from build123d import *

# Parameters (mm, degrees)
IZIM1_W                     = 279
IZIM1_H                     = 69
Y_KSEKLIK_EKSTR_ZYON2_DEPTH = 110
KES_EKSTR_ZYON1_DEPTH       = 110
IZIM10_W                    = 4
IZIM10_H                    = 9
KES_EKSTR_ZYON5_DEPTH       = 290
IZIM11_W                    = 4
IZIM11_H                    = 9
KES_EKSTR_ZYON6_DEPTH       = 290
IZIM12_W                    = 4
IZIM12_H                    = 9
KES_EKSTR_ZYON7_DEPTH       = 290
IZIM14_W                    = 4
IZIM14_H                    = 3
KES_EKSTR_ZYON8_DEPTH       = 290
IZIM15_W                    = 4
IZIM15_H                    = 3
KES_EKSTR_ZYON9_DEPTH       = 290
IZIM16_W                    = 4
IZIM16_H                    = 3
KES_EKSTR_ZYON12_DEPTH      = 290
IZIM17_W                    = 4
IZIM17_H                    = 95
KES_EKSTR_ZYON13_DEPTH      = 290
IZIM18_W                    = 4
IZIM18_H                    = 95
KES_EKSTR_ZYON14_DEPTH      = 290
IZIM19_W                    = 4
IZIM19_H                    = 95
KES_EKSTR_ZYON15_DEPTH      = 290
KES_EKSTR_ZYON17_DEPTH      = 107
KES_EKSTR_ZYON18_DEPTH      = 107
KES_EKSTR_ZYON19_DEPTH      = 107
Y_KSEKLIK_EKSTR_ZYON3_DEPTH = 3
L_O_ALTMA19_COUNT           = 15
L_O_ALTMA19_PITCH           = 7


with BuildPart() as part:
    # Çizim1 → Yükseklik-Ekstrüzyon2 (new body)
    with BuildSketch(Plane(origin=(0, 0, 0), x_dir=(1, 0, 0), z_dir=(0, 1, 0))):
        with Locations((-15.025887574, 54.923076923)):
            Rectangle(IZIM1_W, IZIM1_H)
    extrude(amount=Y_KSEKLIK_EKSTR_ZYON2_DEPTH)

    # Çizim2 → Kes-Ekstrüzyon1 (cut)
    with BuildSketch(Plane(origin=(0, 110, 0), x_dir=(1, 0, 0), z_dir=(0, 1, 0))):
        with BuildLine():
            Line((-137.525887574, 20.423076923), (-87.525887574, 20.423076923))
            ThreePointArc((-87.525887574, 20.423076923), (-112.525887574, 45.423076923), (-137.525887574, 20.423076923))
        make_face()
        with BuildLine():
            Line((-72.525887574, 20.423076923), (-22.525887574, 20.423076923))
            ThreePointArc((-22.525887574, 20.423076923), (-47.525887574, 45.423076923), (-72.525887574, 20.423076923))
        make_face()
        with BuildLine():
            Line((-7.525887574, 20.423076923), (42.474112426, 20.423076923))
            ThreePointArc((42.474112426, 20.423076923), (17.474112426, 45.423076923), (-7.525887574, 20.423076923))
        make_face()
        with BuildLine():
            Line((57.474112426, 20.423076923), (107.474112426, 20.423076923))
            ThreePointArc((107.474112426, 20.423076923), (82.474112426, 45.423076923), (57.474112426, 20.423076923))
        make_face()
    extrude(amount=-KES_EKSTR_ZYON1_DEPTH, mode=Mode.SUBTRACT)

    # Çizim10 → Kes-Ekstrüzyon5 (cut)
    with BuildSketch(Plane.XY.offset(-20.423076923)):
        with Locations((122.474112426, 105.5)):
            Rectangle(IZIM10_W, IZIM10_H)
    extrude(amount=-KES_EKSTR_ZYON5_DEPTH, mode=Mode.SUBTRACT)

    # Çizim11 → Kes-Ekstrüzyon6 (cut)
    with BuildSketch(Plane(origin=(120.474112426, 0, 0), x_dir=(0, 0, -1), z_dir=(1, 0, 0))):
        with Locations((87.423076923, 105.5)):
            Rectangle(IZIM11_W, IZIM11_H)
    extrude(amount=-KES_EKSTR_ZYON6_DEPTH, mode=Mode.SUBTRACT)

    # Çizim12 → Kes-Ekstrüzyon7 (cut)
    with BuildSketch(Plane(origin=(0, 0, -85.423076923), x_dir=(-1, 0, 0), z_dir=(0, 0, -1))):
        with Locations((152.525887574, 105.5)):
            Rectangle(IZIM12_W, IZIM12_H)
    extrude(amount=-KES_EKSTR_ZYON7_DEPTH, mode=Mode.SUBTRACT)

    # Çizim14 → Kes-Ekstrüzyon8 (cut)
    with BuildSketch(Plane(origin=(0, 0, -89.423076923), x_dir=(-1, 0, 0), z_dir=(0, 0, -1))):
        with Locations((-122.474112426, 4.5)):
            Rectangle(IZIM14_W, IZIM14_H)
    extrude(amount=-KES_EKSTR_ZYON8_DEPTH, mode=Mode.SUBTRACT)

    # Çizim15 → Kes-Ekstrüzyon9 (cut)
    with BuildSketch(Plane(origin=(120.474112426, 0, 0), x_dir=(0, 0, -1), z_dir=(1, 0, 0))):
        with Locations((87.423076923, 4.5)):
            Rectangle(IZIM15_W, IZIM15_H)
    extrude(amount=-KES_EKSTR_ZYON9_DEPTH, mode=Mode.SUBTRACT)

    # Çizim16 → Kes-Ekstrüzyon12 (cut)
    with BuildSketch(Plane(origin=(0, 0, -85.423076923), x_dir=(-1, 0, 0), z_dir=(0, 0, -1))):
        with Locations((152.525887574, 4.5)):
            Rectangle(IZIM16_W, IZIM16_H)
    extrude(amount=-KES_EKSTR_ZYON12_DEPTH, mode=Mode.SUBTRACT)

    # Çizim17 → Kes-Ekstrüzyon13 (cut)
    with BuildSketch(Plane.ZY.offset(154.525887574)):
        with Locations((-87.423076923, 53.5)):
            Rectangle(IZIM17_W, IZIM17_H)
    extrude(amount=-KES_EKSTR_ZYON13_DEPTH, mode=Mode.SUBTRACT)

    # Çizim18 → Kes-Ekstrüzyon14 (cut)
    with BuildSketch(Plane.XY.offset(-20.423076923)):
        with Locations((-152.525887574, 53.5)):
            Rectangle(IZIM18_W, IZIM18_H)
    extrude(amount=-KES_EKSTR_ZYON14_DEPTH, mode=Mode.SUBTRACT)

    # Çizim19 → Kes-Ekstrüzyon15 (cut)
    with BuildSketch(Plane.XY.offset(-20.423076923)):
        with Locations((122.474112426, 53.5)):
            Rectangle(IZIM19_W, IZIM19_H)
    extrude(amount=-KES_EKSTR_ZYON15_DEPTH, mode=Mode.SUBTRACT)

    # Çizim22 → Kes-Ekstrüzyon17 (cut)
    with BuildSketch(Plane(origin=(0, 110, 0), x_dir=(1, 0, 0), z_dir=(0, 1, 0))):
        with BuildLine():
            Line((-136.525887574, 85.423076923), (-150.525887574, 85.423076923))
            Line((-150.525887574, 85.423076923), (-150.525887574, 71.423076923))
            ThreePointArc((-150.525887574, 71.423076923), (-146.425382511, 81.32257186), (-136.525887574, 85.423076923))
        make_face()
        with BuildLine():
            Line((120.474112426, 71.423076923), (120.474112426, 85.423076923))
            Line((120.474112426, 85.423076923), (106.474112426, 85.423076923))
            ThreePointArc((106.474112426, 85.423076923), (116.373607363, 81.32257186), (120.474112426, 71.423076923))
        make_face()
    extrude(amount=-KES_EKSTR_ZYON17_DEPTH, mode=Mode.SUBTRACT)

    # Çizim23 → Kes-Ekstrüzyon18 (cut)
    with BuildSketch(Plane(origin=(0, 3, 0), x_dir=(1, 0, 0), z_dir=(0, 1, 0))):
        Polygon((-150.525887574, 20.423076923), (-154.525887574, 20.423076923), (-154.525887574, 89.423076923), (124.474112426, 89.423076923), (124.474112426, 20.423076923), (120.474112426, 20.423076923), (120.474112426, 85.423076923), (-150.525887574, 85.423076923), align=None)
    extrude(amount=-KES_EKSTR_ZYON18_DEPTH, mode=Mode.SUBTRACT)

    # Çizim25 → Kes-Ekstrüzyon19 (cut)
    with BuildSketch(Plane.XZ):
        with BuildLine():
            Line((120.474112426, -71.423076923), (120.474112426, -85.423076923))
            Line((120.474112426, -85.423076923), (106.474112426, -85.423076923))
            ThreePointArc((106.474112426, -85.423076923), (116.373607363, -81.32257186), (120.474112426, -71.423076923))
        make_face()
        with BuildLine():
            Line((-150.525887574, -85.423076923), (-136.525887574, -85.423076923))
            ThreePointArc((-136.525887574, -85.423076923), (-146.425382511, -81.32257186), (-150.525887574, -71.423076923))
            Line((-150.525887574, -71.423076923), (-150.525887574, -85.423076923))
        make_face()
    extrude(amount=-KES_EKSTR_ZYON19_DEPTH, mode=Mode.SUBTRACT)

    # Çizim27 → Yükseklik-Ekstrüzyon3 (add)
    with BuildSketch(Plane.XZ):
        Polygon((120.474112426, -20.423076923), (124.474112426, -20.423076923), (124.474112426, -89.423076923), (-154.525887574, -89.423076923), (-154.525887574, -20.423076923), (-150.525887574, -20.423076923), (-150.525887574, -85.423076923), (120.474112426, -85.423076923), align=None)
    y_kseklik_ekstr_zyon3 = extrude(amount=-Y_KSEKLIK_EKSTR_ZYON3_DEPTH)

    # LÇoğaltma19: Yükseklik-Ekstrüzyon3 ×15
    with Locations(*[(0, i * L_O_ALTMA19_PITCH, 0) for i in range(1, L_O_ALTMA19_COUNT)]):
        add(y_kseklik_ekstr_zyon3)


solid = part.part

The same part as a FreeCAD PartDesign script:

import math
import FreeCAD as App
import Part
import Sketcher

V = App.Vector
Q = App.Units.Quantity

doc = App.newDocument("Part")
params = doc.addObject("Spreadsheet::Sheet", "Params")
for row, (alias, value) in enumerate([
    ("sketch1_width", "279 mm"),
    ("sketch1_height", "69 mm"),
    ("pad1_length", "110 mm"),
    ("sketch2_radius", "25 mm"),
    ("pocket1_length", "110 mm"),
    ("sketch3_width", "4 mm"),
    ("sketch3_height", "9 mm"),
    ("pocket2_length", "290 mm"),
    ("sketch4_width", "9 mm"),
    ("sketch4_height", "4 mm"),
    ("pocket3_length", "290 mm"),
    ("sketch5_width", "4 mm"),
    ("sketch5_height", "9 mm"),
    ("pocket4_length", "290 mm"),
    ("sketch6_width", "4 mm"),
    ("sketch6_height", "3 mm"),
    ("pocket5_length", "290 mm"),
    ("sketch7_width", "3 mm"),
    ("sketch7_height", "4 mm"),
    ("pocket6_length", "290 mm"),
    ("sketch8_width", "4 mm"),
    ("sketch8_height", "3 mm"),
    ("pocket7_length", "290 mm"),
    ("sketch9_width", "95 mm"),
    ("sketch9_height", "4 mm"),
    ("pocket8_length", "290 mm"),
    ("sketch10_width", "4 mm"),
    ("sketch10_height", "95 mm"),
    ("pocket9_length", "290 mm"),
    ("sketch11_width", "4 mm"),
    ("sketch11_height", "95 mm"),
    ("pocket10_length", "290 mm"),
    ("sketch12_radius", "14 mm"),
    ("pocket11_length", "107 mm"),
    ("sketch13_width", "4 mm"),
    ("sketch13_width2", "271 mm"),
    ("sketch13_height", "65 mm"),
    ("sketch13_height2", "69 mm"),
    ("pocket12_length", "107 mm"),
    ("sketch14_radius", "14 mm"),
    ("pocket13_length", "107 mm"),
    ("sketch15_width", "4 mm"),
    ("sketch15_width2", "271 mm"),
    ("sketch15_height", "65 mm"),
    ("sketch15_height2", "69 mm"),
    ("pad2_length", "3 mm"),
    ("linearpattern_pitch", "7 mm"),
], start=1):
    params.set(f"A{row}", alias)
    params.set(f"B{row}", "=" + value)
    params.setAlias(f"B{row}", alias)

body = doc.addObject("PartDesign::Body", "Body")

# Sketch on XZ plane
sketch1 = body.newObject("Sketcher::SketchObject", "Sketch")
sketch1.AttachmentSupport = (doc.getObject("XZ_Plane"), [""])
sketch1.MapMode = "FlatFace"
sketch1.addGeometry(Part.LineSegment(V(-155, -89, 0), V(-155, -20, 0)), False)
sketch1.addGeometry(Part.LineSegment(V(-155, -20, 0), V(124, -20, 0)), False)
sketch1.addGeometry(Part.LineSegment(V(124, -20, 0), V(124, -89, 0)), False)
sketch1.addGeometry(Part.LineSegment(V(124, -89, 0), V(-155, -89, 0)), False)
sketch1.addConstraint(Sketcher.Constraint("Coincident", 0, 2, 1, 1))
sketch1.addConstraint(Sketcher.Constraint("Coincident", 1, 2, 2, 1))
sketch1.addConstraint(Sketcher.Constraint("Coincident", 2, 2, 3, 1))
sketch1.addConstraint(Sketcher.Constraint("Coincident", 3, 2, 0, 1))
sketch1.addConstraint(Sketcher.Constraint("Vertical", 0))
sketch1.addConstraint(Sketcher.Constraint("Horizontal", 1))
sketch1.addConstraint(Sketcher.Constraint("Vertical", 2))
sketch1.addConstraint(Sketcher.Constraint("Horizontal", 3))
sketch1.addConstraint(Sketcher.Constraint("DistanceX", 1, 1, 1, 2, Q("279 mm")))
sketch1.addConstraint(Sketcher.Constraint("DistanceY", 0, 1, 0, 2, Q("69 mm")))
sketch1.addConstraint(Sketcher.Constraint("DistanceX", 0, 2, -1, 1, Q("154.525888 mm")))
sketch1.addConstraint(Sketcher.Constraint("DistanceY", 0, 2, -1, 1, Q("20.423077 mm")))
sketch1.setExpression("Constraints[8]", "Params.sketch1_width")
sketch1.setExpression("Constraints[9]", "Params.sketch1_height")
pad1 = body.newObject("PartDesign::Pad", "Pad")
pad1.Profile = sketch1
pad1.setExpression("Length", "Params.pad1_length")
pad1.Reversed = True

# Sketch on XZ plane
sketch2 = body.newObject("Sketcher::SketchObject", "Sketch001")
sketch2.AttachmentSupport = (doc.getObject("XZ_Plane"), [""])
sketch2.MapMode = "FlatFace"
sketch2.AttachmentOffset = App.Placement(V(0, 0, -110), App.Rotation())
sketch2.addGeometry(Part.LineSegment(V(-138, -20, 0), V(-88, -20, 0)), False)
sketch2.addGeometry(Part.ArcOfCircle(Part.Circle(V(-113, -20, 0), V(0, 0, 1), 25), math.radians(180), math.radians(360)), False)
sketch2.addGeometry(Part.LineSegment(V(-73, -20, 0), V(-23, -20, 0)), False)
sketch2.addGeometry(Part.ArcOfCircle(Part.Circle(V(-48, -20, 0), V(0, 0, 1), 25), math.radians(180), math.radians(360)), False)
sketch2.addGeometry(Part.LineSegment(V(-8, -20, 0), V(42, -20, 0)), False)
sketch2.addGeometry(Part.ArcOfCircle(Part.Circle(V(17, -20, 0), V(0, 0, 1), 25), math.radians(180), math.radians(360)), False)
sketch2.addGeometry(Part.LineSegment(V(57, -20, 0), V(107, -20, 0)), False)
sketch2.addGeometry(Part.ArcOfCircle(Part.Circle(V(82, -20, 0), V(0, 0, 1), 25), math.radians(180), math.radians(360)), False)
sketch2.addConstraint(Sketcher.Constraint("Coincident", 0, 1, 1, 1))
sketch2.addConstraint(Sketcher.Constraint("Coincident", 1, 2, 0, 2))
sketch2.addConstraint(Sketcher.Constraint("Coincident", 2, 1, 3, 1))
sketch2.addConstraint(Sketcher.Constraint("Coincident", 3, 2, 2, 2))
sketch2.addConstraint(Sketcher.Constraint("Coincident", 4, 1, 5, 1))
sketch2.addConstraint(Sketcher.Constraint("Coincident", 5, 2, 4, 2))
sketch2.addConstraint(Sketcher.Constraint("Coincident", 6, 1, 7, 1))
sketch2.addConstraint(Sketcher.Constraint("Coincident", 7, 2, 6, 2))
sketch2.addConstraint(Sketcher.Constraint("Horizontal", 0))
sketch2.addConstraint(Sketcher.Constraint("Horizontal", 2))
sketch2.addConstraint(Sketcher.Constraint("Horizontal", 4))
sketch2.addConstraint(Sketcher.Constraint("Horizontal", 6))
sketch2.addConstraint(Sketcher.Constraint("Equal", 1, 3))
sketch2.addConstraint(Sketcher.Constraint("Equal", 3, 5))
sketch2.addConstraint(Sketcher.Constraint("Equal", 5, 7))
sketch2.addConstraint(Sketcher.Constraint("Horizontal", 1, 3, 3, 3))
sketch2.addConstraint(Sketcher.Constraint("Horizontal", 3, 3, 5, 3))
sketch2.addConstraint(Sketcher.Constraint("Horizontal", 5, 3, 7, 3))
sketch2.addConstraint(Sketcher.Constraint("Horizontal", 7, 3, 0, 1))
sketch2.addConstraint(Sketcher.Constraint("Horizontal", 1, 2, 2, 1))
sketch2.addConstraint(Sketcher.Constraint("Horizontal", 3, 2, 4, 1))
sketch2.addConstraint(Sketcher.Constraint("Horizontal", 5, 2, 6, 1))
sketch2.addConstraint(Sketcher.Constraint("Radius", 1, Q("25 mm")))
sketch2.addConstraint(Sketcher.Constraint("DistanceX", 1, 3, 3, 3, Q("65 mm")))
sketch2.addConstraint(Sketcher.Constraint("DistanceX", 3, 3, 5, 3, Q("65 mm")))
sketch2.addConstraint(Sketcher.Constraint("DistanceX", 5, 3, 7, 3, Q("65 mm")))
sketch2.addConstraint(Sketcher.Constraint("DistanceX", 1, 3, -1, 1, Q("112.525888 mm")))
sketch2.addConstraint(Sketcher.Constraint("DistanceY", 1, 3, -1, 1, Q("20.423077 mm")))
sketch2.setExpression("Constraints[22]", "Params.sketch2_radius")
pocket1 = body.newObject("PartDesign::Pocket", "Pocket")
pocket1.Profile = sketch2
pocket1.setExpression("Length", "Params.pocket1_length")
pocket1.Reversed = True

# Sketch on XY plane
sketch3 = body.newObject("Sketcher::SketchObject", "Sketch002")
sketch3.AttachmentSupport = (doc.getObject("XY_Plane"), [""])
sketch3.MapMode = "FlatFace"
sketch3.AttachmentOffset = App.Placement(V(0, 0, -20.423077), App.Rotation())
sketch3.addGeometry(Part.LineSegment(V(120.5, 110, 0), V(120.5, 101, 0)), False)
sketch3.addGeometry(Part.LineSegment(V(120.5, 101, 0), V(124.5, 101, 0)), False)
sketch3.addGeometry(Part.LineSegment(V(124.5, 101, 0), V(124.5, 110, 0)), False)
sketch3.addGeometry(Part.LineSegment(V(124.5, 110, 0), V(120.5, 110, 0)), False)
sketch3.addConstraint(Sketcher.Constraint("Coincident", 0, 2, 1, 1))
sketch3.addConstraint(Sketcher.Constraint("Coincident", 1, 2, 2, 1))
sketch3.addConstraint(Sketcher.Constraint("Coincident", 2, 2, 3, 1))
sketch3.addConstraint(Sketcher.Constraint("Coincident", 3, 2, 0, 1))
sketch3.addConstraint(Sketcher.Constraint("Vertical", 0))
sketch3.addConstraint(Sketcher.Constraint("Horizontal", 1))
sketch3.addConstraint(Sketcher.Constraint("Vertical", 2))
sketch3.addConstraint(Sketcher.Constraint("Horizontal", 3))
sketch3.addConstraint(Sketcher.Constraint("DistanceX", 1, 1, 1, 2, Q("4 mm")))
sketch3.addConstraint(Sketcher.Constraint("DistanceY", 0, 2, 0, 1, Q("9 mm")))
sketch3.addConstraint(Sketcher.Constraint("DistanceY", -1, 1, 0, 2, Q("101 mm")))
sketch3.addConstraint(Sketcher.Constraint("DistanceX", -1, 1, 0, 2, Q("120.474112 mm")))
sketch3.setExpression("Constraints[8]", "Params.sketch3_width")
sketch3.setExpression("Constraints[9]", "Params.sketch3_height")
pocket2 = body.newObject("PartDesign::Pocket", "Pocket001")
pocket2.Profile = sketch3
pocket2.setExpression("Length", "Params.pocket2_length")

# Sketch on YZ plane
sketch4 = body.newObject("Sketcher::SketchObject", "Sketch003")
sketch4.AttachmentSupport = (doc.getObject("YZ_Plane"), [""])
sketch4.MapMode = "FlatFace"
sketch4.AttachmentOffset = App.Placement(V(0, 0, 120.474112), App.Rotation())
sketch4.addGeometry(Part.LineSegment(V(110, -85.4, 0), V(101, -85.4, 0)), False)
sketch4.addGeometry(Part.LineSegment(V(101, -85.4, 0), V(101, -89.4, 0)), False)
sketch4.addGeometry(Part.LineSegment(V(101, -89.4, 0), V(110, -89.4, 0)), False)
sketch4.addGeometry(Part.LineSegment(V(110, -89.4, 0), V(110, -85.4, 0)), False)
sketch4.addConstraint(Sketcher.Constraint("Coincident", 0, 2, 1, 1))
sketch4.addConstraint(Sketcher.Constraint("Coincident", 1, 2, 2, 1))
sketch4.addConstraint(Sketcher.Constraint("Coincident", 2, 2, 3, 1))
sketch4.addConstraint(Sketcher.Constraint("Coincident", 3, 2, 0, 1))
sketch4.addConstraint(Sketcher.Constraint("Horizontal", 0))
sketch4.addConstraint(Sketcher.Constraint("Vertical", 1))
sketch4.addConstraint(Sketcher.Constraint("Horizontal", 2))
sketch4.addConstraint(Sketcher.Constraint("Vertical", 3))
sketch4.addConstraint(Sketcher.Constraint("DistanceX", 0, 2, 0, 1, Q("9 mm")))
sketch4.addConstraint(Sketcher.Constraint("DistanceY", 1, 2, 1, 1, Q("4 mm")))
sketch4.addConstraint(Sketcher.Constraint("DistanceX", -1, 1, 0, 2, Q("101 mm")))
sketch4.addConstraint(Sketcher.Constraint("DistanceY", 0, 2, -1, 1, Q("85.423077 mm")))
sketch4.setExpression("Constraints[8]", "Params.sketch4_width")
sketch4.setExpression("Constraints[9]", "Params.sketch4_height")
pocket3 = body.newObject("PartDesign::Pocket", "Pocket002")
pocket3.Profile = sketch4
pocket3.setExpression("Length", "Params.pocket3_length")

# Sketch on XY plane
sketch5 = body.newObject("Sketcher::SketchObject", "Sketch004")
sketch5.AttachmentSupport = (doc.getObject("XY_Plane"), [""])
sketch5.MapMode = "FlatFace"
sketch5.AttachmentOffset = App.Placement(V(0, 0, -85.423077), App.Rotation())
sketch5.addGeometry(Part.LineSegment(V(-150.5, 110, 0), V(-150.5, 101, 0)), False)
sketch5.addGeometry(Part.LineSegment(V(-150.5, 101, 0), V(-154.5, 101, 0)), False)
sketch5.addGeometry(Part.LineSegment(V(-154.5, 101, 0), V(-154.5, 110, 0)), False)
sketch5.addGeometry(Part.LineSegment(V(-154.5, 110, 0), V(-150.5, 110, 0)), False)
sketch5.addConstraint(Sketcher.Constraint("Coincident", 0, 2, 1, 1))
sketch5.addConstraint(Sketcher.Constraint("Coincident", 1, 2, 2, 1))
sketch5.addConstraint(Sketcher.Constraint("Coincident", 2, 2, 3, 1))
sketch5.addConstraint(Sketcher.Constraint("Coincident", 3, 2, 0, 1))
sketch5.addConstraint(Sketcher.Constraint("Vertical", 0))
sketch5.addConstraint(Sketcher.Constraint("Horizontal", 1))
sketch5.addConstraint(Sketcher.Constraint("Vertical", 2))
sketch5.addConstraint(Sketcher.Constraint("Horizontal", 3))
sketch5.addConstraint(Sketcher.Constraint("DistanceX", 1, 2, 1, 1, Q("4 mm")))
sketch5.addConstraint(Sketcher.Constraint("DistanceY", 0, 2, 0, 1, Q("9 mm")))
sketch5.addConstraint(Sketcher.Constraint("DistanceY", -1, 1, 0, 2, Q("101 mm")))
sketch5.addConstraint(Sketcher.Constraint("DistanceX", 0, 2, -1, 1, Q("150.525888 mm")))
sketch5.setExpression("Constraints[8]", "Params.sketch5_width")
sketch5.setExpression("Constraints[9]", "Params.sketch5_height")
pocket4 = body.newObject("PartDesign::Pocket", "Pocket003")
pocket4.Profile = sketch5
pocket4.setExpression("Length", "Params.pocket4_length")
pocket4.Reversed = True

# Sketch on XY plane
sketch6 = body.newObject("Sketcher::SketchObject", "Sketch005")
sketch6.AttachmentSupport = (doc.getObject("XY_Plane"), [""])
sketch6.MapMode = "FlatFace"
sketch6.AttachmentOffset = App.Placement(V(0, 0, -89.423077), App.Rotation())
sketch6.addGeometry(Part.LineSegment(V(124.5, 6, 0), V(124.5, 3, 0)), False)
sketch6.addGeometry(Part.LineSegment(V(124.5, 3, 0), V(120.5, 3, 0)), False)
sketch6.addGeometry(Part.LineSegment(V(120.5, 3, 0), V(120.5, 6, 0)), False)
sketch6.addGeometry(Part.LineSegment(V(120.5, 6, 0), V(124.5, 6, 0)), False)
sketch6.addConstraint(Sketcher.Constraint("Coincident", 0, 2, 1, 1))
sketch6.addConstraint(Sketcher.Constraint("Coincident", 1, 2, 2, 1))
sketch6.addConstraint(Sketcher.Constraint("Coincident", 2, 2, 3, 1))
sketch6.addConstraint(Sketcher.Constraint("Coincident", 3, 2, 0, 1))
sketch6.addConstraint(Sketcher.Constraint("Vertical", 0))
sketch6.addConstraint(Sketcher.Constraint("Horizontal", 1))
sketch6.addConstraint(Sketcher.Constraint("Vertical", 2))
sketch6.addConstraint(Sketcher.Constraint("Horizontal", 3))
sketch6.addConstraint(Sketcher.Constraint("DistanceX", 1, 2, 1, 1, Q("4 mm")))
sketch6.addConstraint(Sketcher.Constraint("DistanceY", 0, 2, 0, 1, Q("3 mm")))
sketch6.addConstraint(Sketcher.Constraint("DistanceY", -1, 1, 0, 2, Q("3 mm")))
sketch6.addConstraint(Sketcher.Constraint("DistanceX", -1, 1, 0, 2, Q("124.474112 mm")))
sketch6.setExpression("Constraints[8]", "Params.sketch6_width")
sketch6.setExpression("Constraints[9]", "Params.sketch6_height")
pocket5 = body.newObject("PartDesign::Pocket", "Pocket004")
pocket5.Profile = sketch6
pocket5.setExpression("Length", "Params.pocket5_length")
pocket5.Reversed = True

# Sketch on YZ plane
sketch7 = body.newObject("Sketcher::SketchObject", "Sketch006")
sketch7.AttachmentSupport = (doc.getObject("YZ_Plane"), [""])
sketch7.MapMode = "FlatFace"
sketch7.AttachmentOffset = App.Placement(V(0, 0, 120.474112), App.Rotation())
sketch7.addGeometry(Part.LineSegment(V(6, -85.4, 0), V(3, -85.4, 0)), False)
sketch7.addGeometry(Part.LineSegment(V(3, -85.4, 0), V(3, -89.4, 0)), False)
sketch7.addGeometry(Part.LineSegment(V(3, -89.4, 0), V(6, -89.4, 0)), False)
sketch7.addGeometry(Part.LineSegment(V(6, -89.4, 0), V(6, -85.4, 0)), False)
sketch7.addConstraint(Sketcher.Constraint("Coincident", 0, 2, 1, 1))
sketch7.addConstraint(Sketcher.Constraint("Coincident", 1, 2, 2, 1))
sketch7.addConstraint(Sketcher.Constraint("Coincident", 2, 2, 3, 1))
sketch7.addConstraint(Sketcher.Constraint("Coincident", 3, 2, 0, 1))
sketch7.addConstraint(Sketcher.Constraint("Horizontal", 0))
sketch7.addConstraint(Sketcher.Constraint("Vertical", 1))
sketch7.addConstraint(Sketcher.Constraint("Horizontal", 2))
sketch7.addConstraint(Sketcher.Constraint("Vertical", 3))
sketch7.addConstraint(Sketcher.Constraint("DistanceX", 0, 2, 0, 1, Q("3 mm")))
sketch7.addConstraint(Sketcher.Constraint("DistanceY", 1, 2, 1, 1, Q("4 mm")))
sketch7.addConstraint(Sketcher.Constraint("DistanceX", -1, 1, 0, 2, Q("3 mm")))
sketch7.addConstraint(Sketcher.Constraint("DistanceY", 0, 2, -1, 1, Q("85.423077 mm")))
sketch7.setExpression("Constraints[8]", "Params.sketch7_width")
sketch7.setExpression("Constraints[9]", "Params.sketch7_height")
pocket6 = body.newObject("PartDesign::Pocket", "Pocket005")
pocket6.Profile = sketch7
pocket6.setExpression("Length", "Params.pocket6_length")

# Sketch on XY plane
sketch8 = body.newObject("Sketcher::SketchObject", "Sketch007")
sketch8.AttachmentSupport = (doc.getObject("XY_Plane"), [""])
sketch8.MapMode = "FlatFace"
sketch8.AttachmentOffset = App.Placement(V(0, 0, -85.423077), App.Rotation())
sketch8.addGeometry(Part.LineSegment(V(-150.5, 6, 0), V(-150.5, 3, 0)), False)
sketch8.addGeometry(Part.LineSegment(V(-150.5, 3, 0), V(-154.5, 3, 0)), False)
sketch8.addGeometry(Part.LineSegment(V(-154.5, 3, 0), V(-154.5, 6, 0)), False)
sketch8.addGeometry(Part.LineSegment(V(-154.5, 6, 0), V(-150.5, 6, 0)), False)
sketch8.addConstraint(Sketcher.Constraint("Coincident", 0, 2, 1, 1))
sketch8.addConstraint(Sketcher.Constraint("Coincident", 1, 2, 2, 1))
sketch8.addConstraint(Sketcher.Constraint("Coincident", 2, 2, 3, 1))
sketch8.addConstraint(Sketcher.Constraint("Coincident", 3, 2, 0, 1))
sketch8.addConstraint(Sketcher.Constraint("Vertical", 0))
sketch8.addConstraint(Sketcher.Constraint("Horizontal", 1))
sketch8.addConstraint(Sketcher.Constraint("Vertical", 2))
sketch8.addConstraint(Sketcher.Constraint("Horizontal", 3))
sketch8.addConstraint(Sketcher.Constraint("DistanceX", 1, 2, 1, 1, Q("4 mm")))
sketch8.addConstraint(Sketcher.Constraint("DistanceY", 0, 2, 0, 1, Q("3 mm")))
sketch8.addConstraint(Sketcher.Constraint("DistanceY", -1, 1, 0, 2, Q("3 mm")))
sketch8.addConstraint(Sketcher.Constraint("DistanceX", 0, 2, -1, 1, Q("150.525888 mm")))
sketch8.setExpression("Constraints[8]", "Params.sketch8_width")
sketch8.setExpression("Constraints[9]", "Params.sketch8_height")
pocket7 = body.newObject("PartDesign::Pocket", "Pocket006")
pocket7.Profile = sketch8
pocket7.setExpression("Length", "Params.pocket7_length")
pocket7.Reversed = True

# Sketch on YZ plane
sketch9 = body.newObject("Sketcher::SketchObject", "Sketch008")
sketch9.AttachmentSupport = (doc.getObject("YZ_Plane"), [""])
sketch9.MapMode = "FlatFace"
sketch9.AttachmentOffset = App.Placement(V(0, 0, -154.525888), App.Rotation())
sketch9.addGeometry(Part.LineSegment(V(101, -89.4, 0), V(6, -89.4, 0)), False)
sketch9.addGeometry(Part.LineSegment(V(6, -89.4, 0), V(6, -85.4, 0)), False)
sketch9.addGeometry(Part.LineSegment(V(6, -85.4, 0), V(101, -85.4, 0)), False)
sketch9.addGeometry(Part.LineSegment(V(101, -85.4, 0), V(101, -89.4, 0)), False)
sketch9.addConstraint(Sketcher.Constraint("Coincident", 0, 2, 1, 1))
sketch9.addConstraint(Sketcher.Constraint("Coincident", 1, 2, 2, 1))
sketch9.addConstraint(Sketcher.Constraint("Coincident", 2, 2, 3, 1))
sketch9.addConstraint(Sketcher.Constraint("Coincident", 3, 2, 0, 1))
sketch9.addConstraint(Sketcher.Constraint("Horizontal", 0))
sketch9.addConstraint(Sketcher.Constraint("Vertical", 1))
sketch9.addConstraint(Sketcher.Constraint("Horizontal", 2))
sketch9.addConstraint(Sketcher.Constraint("Vertical", 3))
sketch9.addConstraint(Sketcher.Constraint("DistanceX", 0, 2, 0, 1, Q("95 mm")))
sketch9.addConstraint(Sketcher.Constraint("DistanceY", 1, 1, 1, 2, Q("4 mm")))
sketch9.addConstraint(Sketcher.Constraint("DistanceX", -1, 1, 0, 2, Q("6 mm")))
sketch9.addConstraint(Sketcher.Constraint("DistanceY", 0, 2, -1, 1, Q("89.423077 mm")))
sketch9.setExpression("Constraints[8]", "Params.sketch9_width")
sketch9.setExpression("Constraints[9]", "Params.sketch9_height")
pocket8 = body.newObject("PartDesign::Pocket", "Pocket007")
pocket8.Profile = sketch9
pocket8.setExpression("Length", "Params.pocket8_length")
pocket8.Reversed = True

# Sketch on XY plane
sketch10 = body.newObject("Sketcher::SketchObject", "Sketch009")
sketch10.AttachmentSupport = (doc.getObject("XY_Plane"), [""])
sketch10.MapMode = "FlatFace"
sketch10.AttachmentOffset = App.Placement(V(0, 0, -20.423077), App.Rotation())
sketch10.addGeometry(Part.LineSegment(V(-154.5, 101, 0), V(-154.5, 6, 0)), False)
sketch10.addGeometry(Part.LineSegment(V(-154.5, 6, 0), V(-150.5, 6, 0)), False)
sketch10.addGeometry(Part.LineSegment(V(-150.5, 6, 0), V(-150.5, 101, 0)), False)
sketch10.addGeometry(Part.LineSegment(V(-150.5, 101, 0), V(-154.5, 101, 0)), False)
sketch10.addConstraint(Sketcher.Constraint("Coincident", 0, 2, 1, 1))
sketch10.addConstraint(Sketcher.Constraint("Coincident", 1, 2, 2, 1))
sketch10.addConstraint(Sketcher.Constraint("Coincident", 2, 2, 3, 1))
sketch10.addConstraint(Sketcher.Constraint("Coincident", 3, 2, 0, 1))
sketch10.addConstraint(Sketcher.Constraint("Vertical", 0))
sketch10.addConstraint(Sketcher.Constraint("Horizontal", 1))
sketch10.addConstraint(Sketcher.Constraint("Vertical", 2))
sketch10.addConstraint(Sketcher.Constraint("Horizontal", 3))
sketch10.addConstraint(Sketcher.Constraint("DistanceX", 1, 1, 1, 2, Q("4 mm")))
sketch10.addConstraint(Sketcher.Constraint("DistanceY", 0, 2, 0, 1, Q("95 mm")))
sketch10.addConstraint(Sketcher.Constraint("DistanceY", -1, 1, 0, 2, Q("6 mm")))
sketch10.addConstraint(Sketcher.Constraint("DistanceX", 0, 2, -1, 1, Q("154.525888 mm")))
sketch10.setExpression("Constraints[8]", "Params.sketch10_width")
sketch10.setExpression("Constraints[9]", "Params.sketch10_height")
pocket9 = body.newObject("PartDesign::Pocket", "Pocket008")
pocket9.Profile = sketch10
pocket9.setExpression("Length", "Params.pocket9_length")

# Sketch on XY plane
sketch11 = body.newObject("Sketcher::SketchObject", "Sketch010")
sketch11.AttachmentSupport = (doc.getObject("XY_Plane"), [""])
sketch11.MapMode = "FlatFace"
sketch11.AttachmentOffset = App.Placement(V(0, 0, -20.423077), App.Rotation())
sketch11.addGeometry(Part.LineSegment(V(120.5, 101, 0), V(120.5, 6, 0)), False)
sketch11.addGeometry(Part.LineSegment(V(120.5, 6, 0), V(124.5, 6, 0)), False)
sketch11.addGeometry(Part.LineSegment(V(124.5, 6, 0), V(124.5, 101, 0)), False)
sketch11.addGeometry(Part.LineSegment(V(124.5, 101, 0), V(120.5, 101, 0)), False)
sketch11.addConstraint(Sketcher.Constraint("Coincident", 0, 2, 1, 1))
sketch11.addConstraint(Sketcher.Constraint("Coincident", 1, 2, 2, 1))
sketch11.addConstraint(Sketcher.Constraint("Coincident", 2, 2, 3, 1))
sketch11.addConstraint(Sketcher.Constraint("Coincident", 3, 2, 0, 1))
sketch11.addConstraint(Sketcher.Constraint("Vertical", 0))
sketch11.addConstraint(Sketcher.Constraint("Horizontal", 1))
sketch11.addConstraint(Sketcher.Constraint("Vertical", 2))
sketch11.addConstraint(Sketcher.Constraint("Horizontal", 3))
sketch11.addConstraint(Sketcher.Constraint("DistanceX", 1, 1, 1, 2, Q("4 mm")))
sketch11.addConstraint(Sketcher.Constraint("DistanceY", 0, 2, 0, 1, Q("95 mm")))
sketch11.addConstraint(Sketcher.Constraint("DistanceY", -1, 1, 0, 2, Q("6 mm")))
sketch11.addConstraint(Sketcher.Constraint("DistanceX", -1, 1, 0, 2, Q("120.474112 mm")))
sketch11.setExpression("Constraints[8]", "Params.sketch11_width")
sketch11.setExpression("Constraints[9]", "Params.sketch11_height")
pocket10 = body.newObject("PartDesign::Pocket", "Pocket009")
pocket10.Profile = sketch11
pocket10.setExpression("Length", "Params.pocket10_length")

# Sketch on XZ plane
sketch12 = body.newObject("Sketcher::SketchObject", "Sketch011")
sketch12.AttachmentSupport = (doc.getObject("XZ_Plane"), [""])
sketch12.MapMode = "FlatFace"
sketch12.AttachmentOffset = App.Placement(V(0, 0, -110), App.Rotation())
sketch12.addGeometry(Part.LineSegment(V(-137, -85, 0), V(-151, -85, 0)), False)
sketch12.addGeometry(Part.LineSegment(V(-151, -85, 0), V(-151, -71, 0)), False)
sketch12.addGeometry(Part.ArcOfCircle(Part.Circle(V(-137, -71, 0), V(0, 0, 1), 14), math.radians(180), math.radians(270)), False)
sketch12.addGeometry(Part.LineSegment(V(120, -71, 0), V(120, -85, 0)), False)
sketch12.addGeometry(Part.LineSegment(V(120, -85, 0), V(106, -85, 0)), False)
sketch12.addGeometry(Part.ArcOfCircle(Part.Circle(V(106, -71, 0), V(0, 0, 1), 14), math.radians(-90), math.radians(0)), False)
sketch12.addConstraint(Sketcher.Constraint("Coincident", 0, 2, 1, 1))
sketch12.addConstraint(Sketcher.Constraint("Tangent", 1, 2, 2, 1))
sketch12.addConstraint(Sketcher.Constraint("Tangent", 2, 2, 0, 1))
sketch12.addConstraint(Sketcher.Constraint("Coincident", 3, 2, 4, 1))
sketch12.addConstraint(Sketcher.Constraint("Tangent", 4, 2, 5, 1))
sketch12.addConstraint(Sketcher.Constraint("Tangent", 5, 2, 3, 1))
sketch12.addConstraint(Sketcher.Constraint("Horizontal", 0))
sketch12.addConstraint(Sketcher.Constraint("Vertical", 1))
sketch12.addConstraint(Sketcher.Constraint("Vertical", 3))
sketch12.addConstraint(Sketcher.Constraint("Horizontal", 4))
sketch12.addConstraint(Sketcher.Constraint("Equal", 2, 5))
sketch12.addConstraint(Sketcher.Constraint("Horizontal", 2, 3, 5, 3))
sketch12.addConstraint(Sketcher.Constraint("Radius", 2, Q("14 mm")))
sketch12.addConstraint(Sketcher.Constraint("DistanceX", 2, 3, 5, 3, Q("243 mm")))
sketch12.addConstraint(Sketcher.Constraint("DistanceX", 2, 3, -1, 1, Q("136.525888 mm")))
sketch12.addConstraint(Sketcher.Constraint("DistanceY", 2, 3, -1, 1, Q("71.423077 mm")))
sketch12.setExpression("Constraints[12]", "Params.sketch12_radius")
pocket11 = body.newObject("PartDesign::Pocket", "Pocket010")
pocket11.Profile = sketch12
pocket11.setExpression("Length", "Params.pocket11_length")
pocket11.Reversed = True

# Sketch on XZ plane
sketch13 = body.newObject("Sketcher::SketchObject", "Sketch012")
sketch13.AttachmentSupport = (doc.getObject("XZ_Plane"), [""])
sketch13.MapMode = "FlatFace"
sketch13.AttachmentOffset = App.Placement(V(0, 0, -3), App.Rotation())
sketch13.addGeometry(Part.LineSegment(V(-154.5, -20.4, 0), V(-150.5, -20.4, 0)), False)
sketch13.addGeometry(Part.LineSegment(V(-150.5, -20.4, 0), V(-150.5, -85.4, 0)), False)
sketch13.addGeometry(Part.LineSegment(V(-150.5, -85.4, 0), V(120.5, -85.4, 0)), False)
sketch13.addGeometry(Part.LineSegment(V(120.5, -85.4, 0), V(120.5, -20.4, 0)), False)
sketch13.addGeometry(Part.LineSegment(V(120.5, -20.4, 0), V(124.5, -20.4, 0)), False)
sketch13.addGeometry(Part.LineSegment(V(124.5, -20.4, 0), V(124.5, -89.4, 0)), False)
sketch13.addGeometry(Part.LineSegment(V(124.5, -89.4, 0), V(-154.5, -89.4, 0)), False)
sketch13.addGeometry(Part.LineSegment(V(-154.5, -89.4, 0), V(-154.5, -20.4, 0)), False)
sketch13.addConstraint(Sketcher.Constraint("Coincident", 0, 2, 1, 1))
sketch13.addConstraint(Sketcher.Constraint("Coincident", 1, 2, 2, 1))
sketch13.addConstraint(Sketcher.Constraint("Coincident", 2, 2, 3, 1))
sketch13.addConstraint(Sketcher.Constraint("Coincident", 3, 2, 4, 1))
sketch13.addConstraint(Sketcher.Constraint("Coincident", 4, 2, 5, 1))
sketch13.addConstraint(Sketcher.Constraint("Coincident", 5, 2, 6, 1))
sketch13.addConstraint(Sketcher.Constraint("Coincident", 6, 2, 7, 1))
sketch13.addConstraint(Sketcher.Constraint("Coincident", 7, 2, 0, 1))
sketch13.addConstraint(Sketcher.Constraint("Horizontal", 0))
sketch13.addConstraint(Sketcher.Constraint("Vertical", 1))
sketch13.addConstraint(Sketcher.Constraint("Horizontal", 2))
sketch13.addConstraint(Sketcher.Constraint("Vertical", 3))
sketch13.addConstraint(Sketcher.Constraint("Horizontal", 4))
sketch13.addConstraint(Sketcher.Constraint("Vertical", 5))
sketch13.addConstraint(Sketcher.Constraint("Horizontal", 6))
sketch13.addConstraint(Sketcher.Constraint("Vertical", 7))
sketch13.addConstraint(Sketcher.Constraint("Horizontal", 0, 2, 3, 2))
sketch13.addConstraint(Sketcher.Constraint("Equal", 0, 4))
sketch13.addConstraint(Sketcher.Constraint("DistanceX", 0, 1, 0, 2, Q("4 mm")))
sketch13.addConstraint(Sketcher.Constraint("DistanceX", 2, 1, 2, 2, Q("271 mm")))
sketch13.addConstraint(Sketcher.Constraint("DistanceY", 1, 2, 1, 1, Q("65 mm")))
sketch13.addConstraint(Sketcher.Constraint("DistanceY", 5, 2, 5, 1, Q("69 mm")))
sketch13.addConstraint(Sketcher.Constraint("DistanceX", 0, 2, -1, 1, Q("150.525888 mm")))
sketch13.addConstraint(Sketcher.Constraint("DistanceY", 0, 2, -1, 1, Q("20.423077 mm")))
sketch13.setExpression("Constraints[18]", "Params.sketch13_width")
sketch13.setExpression("Constraints[19]", "Params.sketch13_width2")
sketch13.setExpression("Constraints[20]", "Params.sketch13_height")
sketch13.setExpression("Constraints[21]", "Params.sketch13_height2")
pocket12 = body.newObject("PartDesign::Pocket", "Pocket011")
pocket12.Profile = sketch13
pocket12.setExpression("Length", "Params.pocket12_length")
pocket12.Reversed = True

# Sketch on XZ plane
sketch14 = body.newObject("Sketcher::SketchObject", "Sketch013")
sketch14.AttachmentSupport = (doc.getObject("XZ_Plane"), [""])
sketch14.MapMode = "FlatFace"
sketch14.addGeometry(Part.LineSegment(V(120, -85, 0), V(120, -71, 0)), False)
sketch14.addGeometry(Part.ArcOfCircle(Part.Circle(V(106, -71, 0), V(0, 0, 1), 14), math.radians(-90), math.radians(0)), False)
sketch14.addGeometry(Part.LineSegment(V(106, -85, 0), V(120, -85, 0)), False)
sketch14.addGeometry(Part.LineSegment(V(-151, -85, 0), V(-137, -85, 0)), False)
sketch14.addGeometry(Part.ArcOfCircle(Part.Circle(V(-137, -71, 0), V(0, 0, 1), 14), math.radians(180), math.radians(270)), False)
sketch14.addGeometry(Part.LineSegment(V(-151, -71, 0), V(-151, -85, 0)), False)
sketch14.addConstraint(Sketcher.Constraint("Tangent", 0, 2, 1, 2))
sketch14.addConstraint(Sketcher.Constraint("Tangent", 1, 1, 2, 1))
sketch14.addConstraint(Sketcher.Constraint("Coincident", 2, 2, 0, 1))
sketch14.addConstraint(Sketcher.Constraint("Tangent", 3, 2, 4, 2))
sketch14.addConstraint(Sketcher.Constraint("Tangent", 4, 1, 5, 1))
sketch14.addConstraint(Sketcher.Constraint("Coincident", 5, 2, 3, 1))
sketch14.addConstraint(Sketcher.Constraint("Vertical", 0))
sketch14.addConstraint(Sketcher.Constraint("Horizontal", 2))
sketch14.addConstraint(Sketcher.Constraint("Horizontal", 3))
sketch14.addConstraint(Sketcher.Constraint("Vertical", 5))
sketch14.addConstraint(Sketcher.Constraint("Equal", 1, 4))
sketch14.addConstraint(Sketcher.Constraint("Horizontal", 1, 3, 4, 3))
sketch14.addConstraint(Sketcher.Constraint("Radius", 1, Q("14 mm")))
sketch14.addConstraint(Sketcher.Constraint("DistanceX", 4, 3, 1, 3, Q("243 mm")))
sketch14.addConstraint(Sketcher.Constraint("DistanceX", -1, 1, 1, 3, Q("106.474112 mm")))
sketch14.addConstraint(Sketcher.Constraint("DistanceY", 1, 3, -1, 1, Q("71.423077 mm")))
sketch14.setExpression("Constraints[12]", "Params.sketch14_radius")
pocket13 = body.newObject("PartDesign::Pocket", "Pocket012")
pocket13.Profile = sketch14
pocket13.setExpression("Length", "Params.pocket13_length")

# Sketch on XZ plane
sketch15 = body.newObject("Sketcher::SketchObject", "Sketch014")
sketch15.AttachmentSupport = (doc.getObject("XZ_Plane"), [""])
sketch15.MapMode = "FlatFace"
sketch15.addGeometry(Part.LineSegment(V(124.5, -20.4, 0), V(120.5, -20.4, 0)), False)
sketch15.addGeometry(Part.LineSegment(V(120.5, -20.4, 0), V(120.5, -85.4, 0)), False)
sketch15.addGeometry(Part.LineSegment(V(120.5, -85.4, 0), V(-150.5, -85.4, 0)), False)
sketch15.addGeometry(Part.LineSegment(V(-150.5, -85.4, 0), V(-150.5, -20.4, 0)), False)
sketch15.addGeometry(Part.LineSegment(V(-150.5, -20.4, 0), V(-154.5, -20.4, 0)), False)
sketch15.addGeometry(Part.LineSegment(V(-154.5, -20.4, 0), V(-154.5, -89.4, 0)), False)
sketch15.addGeometry(Part.LineSegment(V(-154.5, -89.4, 0), V(124.5, -89.4, 0)), False)
sketch15.addGeometry(Part.LineSegment(V(124.5, -89.4, 0), V(124.5, -20.4, 0)), False)
sketch15.addConstraint(Sketcher.Constraint("Coincident", 0, 2, 1, 1))
sketch15.addConstraint(Sketcher.Constraint("Coincident", 1, 2, 2, 1))
sketch15.addConstraint(Sketcher.Constraint("Coincident", 2, 2, 3, 1))
sketch15.addConstraint(Sketcher.Constraint("Coincident", 3, 2, 4, 1))
sketch15.addConstraint(Sketcher.Constraint("Coincident", 4, 2, 5, 1))
sketch15.addConstraint(Sketcher.Constraint("Coincident", 5, 2, 6, 1))
sketch15.addConstraint(Sketcher.Constraint("Coincident", 6, 2, 7, 1))
sketch15.addConstraint(Sketcher.Constraint("Coincident", 7, 2, 0, 1))
sketch15.addConstraint(Sketcher.Constraint("Horizontal", 0))
sketch15.addConstraint(Sketcher.Constraint("Vertical", 1))
sketch15.addConstraint(Sketcher.Constraint("Horizontal", 2))
sketch15.addConstraint(Sketcher.Constraint("Vertical", 3))
sketch15.addConstraint(Sketcher.Constraint("Horizontal", 4))
sketch15.addConstraint(Sketcher.Constraint("Vertical", 5))
sketch15.addConstraint(Sketcher.Constraint("Horizontal", 6))
sketch15.addConstraint(Sketcher.Constraint("Vertical", 7))
sketch15.addConstraint(Sketcher.Constraint("Horizontal", 0, 2, 3, 2))
sketch15.addConstraint(Sketcher.Constraint("Equal", 0, 4))
sketch15.addConstraint(Sketcher.Constraint("DistanceX", 0, 2, 0, 1, Q("4 mm")))
sketch15.addConstraint(Sketcher.Constraint("DistanceX", 2, 2, 2, 1, Q("271 mm")))
sketch15.addConstraint(Sketcher.Constraint("DistanceY", 1, 2, 1, 1, Q("65 mm")))
sketch15.addConstraint(Sketcher.Constraint("DistanceY", 5, 2, 5, 1, Q("69 mm")))
sketch15.addConstraint(Sketcher.Constraint("DistanceX", -1, 1, 0, 2, Q("120.474112 mm")))
sketch15.addConstraint(Sketcher.Constraint("DistanceY", 0, 2, -1, 1, Q("20.423077 mm")))
sketch15.setExpression("Constraints[18]", "Params.sketch15_width")
sketch15.setExpression("Constraints[19]", "Params.sketch15_width2")
sketch15.setExpression("Constraints[20]", "Params.sketch15_height")
sketch15.setExpression("Constraints[21]", "Params.sketch15_height2")
pad2 = body.newObject("PartDesign::Pad", "Pad001")
pad2.Profile = sketch15
pad2.setExpression("Length", "Params.pad2_length")
pad2.Reversed = True
doc.recompute()

linearpattern = body.newObject("PartDesign::LinearPattern", "LinearPattern")
linearpattern.Originals = [pad2]
linearpattern.Direction = (doc.getObject("Y_Axis"), [""])
linearpattern.Mode = "offset"
linearpattern.setExpression("Offset", "Params.linearpattern_pitch")
linearpattern.Occurrences = 15
body.Tip = linearpattern

doc.recompute()
